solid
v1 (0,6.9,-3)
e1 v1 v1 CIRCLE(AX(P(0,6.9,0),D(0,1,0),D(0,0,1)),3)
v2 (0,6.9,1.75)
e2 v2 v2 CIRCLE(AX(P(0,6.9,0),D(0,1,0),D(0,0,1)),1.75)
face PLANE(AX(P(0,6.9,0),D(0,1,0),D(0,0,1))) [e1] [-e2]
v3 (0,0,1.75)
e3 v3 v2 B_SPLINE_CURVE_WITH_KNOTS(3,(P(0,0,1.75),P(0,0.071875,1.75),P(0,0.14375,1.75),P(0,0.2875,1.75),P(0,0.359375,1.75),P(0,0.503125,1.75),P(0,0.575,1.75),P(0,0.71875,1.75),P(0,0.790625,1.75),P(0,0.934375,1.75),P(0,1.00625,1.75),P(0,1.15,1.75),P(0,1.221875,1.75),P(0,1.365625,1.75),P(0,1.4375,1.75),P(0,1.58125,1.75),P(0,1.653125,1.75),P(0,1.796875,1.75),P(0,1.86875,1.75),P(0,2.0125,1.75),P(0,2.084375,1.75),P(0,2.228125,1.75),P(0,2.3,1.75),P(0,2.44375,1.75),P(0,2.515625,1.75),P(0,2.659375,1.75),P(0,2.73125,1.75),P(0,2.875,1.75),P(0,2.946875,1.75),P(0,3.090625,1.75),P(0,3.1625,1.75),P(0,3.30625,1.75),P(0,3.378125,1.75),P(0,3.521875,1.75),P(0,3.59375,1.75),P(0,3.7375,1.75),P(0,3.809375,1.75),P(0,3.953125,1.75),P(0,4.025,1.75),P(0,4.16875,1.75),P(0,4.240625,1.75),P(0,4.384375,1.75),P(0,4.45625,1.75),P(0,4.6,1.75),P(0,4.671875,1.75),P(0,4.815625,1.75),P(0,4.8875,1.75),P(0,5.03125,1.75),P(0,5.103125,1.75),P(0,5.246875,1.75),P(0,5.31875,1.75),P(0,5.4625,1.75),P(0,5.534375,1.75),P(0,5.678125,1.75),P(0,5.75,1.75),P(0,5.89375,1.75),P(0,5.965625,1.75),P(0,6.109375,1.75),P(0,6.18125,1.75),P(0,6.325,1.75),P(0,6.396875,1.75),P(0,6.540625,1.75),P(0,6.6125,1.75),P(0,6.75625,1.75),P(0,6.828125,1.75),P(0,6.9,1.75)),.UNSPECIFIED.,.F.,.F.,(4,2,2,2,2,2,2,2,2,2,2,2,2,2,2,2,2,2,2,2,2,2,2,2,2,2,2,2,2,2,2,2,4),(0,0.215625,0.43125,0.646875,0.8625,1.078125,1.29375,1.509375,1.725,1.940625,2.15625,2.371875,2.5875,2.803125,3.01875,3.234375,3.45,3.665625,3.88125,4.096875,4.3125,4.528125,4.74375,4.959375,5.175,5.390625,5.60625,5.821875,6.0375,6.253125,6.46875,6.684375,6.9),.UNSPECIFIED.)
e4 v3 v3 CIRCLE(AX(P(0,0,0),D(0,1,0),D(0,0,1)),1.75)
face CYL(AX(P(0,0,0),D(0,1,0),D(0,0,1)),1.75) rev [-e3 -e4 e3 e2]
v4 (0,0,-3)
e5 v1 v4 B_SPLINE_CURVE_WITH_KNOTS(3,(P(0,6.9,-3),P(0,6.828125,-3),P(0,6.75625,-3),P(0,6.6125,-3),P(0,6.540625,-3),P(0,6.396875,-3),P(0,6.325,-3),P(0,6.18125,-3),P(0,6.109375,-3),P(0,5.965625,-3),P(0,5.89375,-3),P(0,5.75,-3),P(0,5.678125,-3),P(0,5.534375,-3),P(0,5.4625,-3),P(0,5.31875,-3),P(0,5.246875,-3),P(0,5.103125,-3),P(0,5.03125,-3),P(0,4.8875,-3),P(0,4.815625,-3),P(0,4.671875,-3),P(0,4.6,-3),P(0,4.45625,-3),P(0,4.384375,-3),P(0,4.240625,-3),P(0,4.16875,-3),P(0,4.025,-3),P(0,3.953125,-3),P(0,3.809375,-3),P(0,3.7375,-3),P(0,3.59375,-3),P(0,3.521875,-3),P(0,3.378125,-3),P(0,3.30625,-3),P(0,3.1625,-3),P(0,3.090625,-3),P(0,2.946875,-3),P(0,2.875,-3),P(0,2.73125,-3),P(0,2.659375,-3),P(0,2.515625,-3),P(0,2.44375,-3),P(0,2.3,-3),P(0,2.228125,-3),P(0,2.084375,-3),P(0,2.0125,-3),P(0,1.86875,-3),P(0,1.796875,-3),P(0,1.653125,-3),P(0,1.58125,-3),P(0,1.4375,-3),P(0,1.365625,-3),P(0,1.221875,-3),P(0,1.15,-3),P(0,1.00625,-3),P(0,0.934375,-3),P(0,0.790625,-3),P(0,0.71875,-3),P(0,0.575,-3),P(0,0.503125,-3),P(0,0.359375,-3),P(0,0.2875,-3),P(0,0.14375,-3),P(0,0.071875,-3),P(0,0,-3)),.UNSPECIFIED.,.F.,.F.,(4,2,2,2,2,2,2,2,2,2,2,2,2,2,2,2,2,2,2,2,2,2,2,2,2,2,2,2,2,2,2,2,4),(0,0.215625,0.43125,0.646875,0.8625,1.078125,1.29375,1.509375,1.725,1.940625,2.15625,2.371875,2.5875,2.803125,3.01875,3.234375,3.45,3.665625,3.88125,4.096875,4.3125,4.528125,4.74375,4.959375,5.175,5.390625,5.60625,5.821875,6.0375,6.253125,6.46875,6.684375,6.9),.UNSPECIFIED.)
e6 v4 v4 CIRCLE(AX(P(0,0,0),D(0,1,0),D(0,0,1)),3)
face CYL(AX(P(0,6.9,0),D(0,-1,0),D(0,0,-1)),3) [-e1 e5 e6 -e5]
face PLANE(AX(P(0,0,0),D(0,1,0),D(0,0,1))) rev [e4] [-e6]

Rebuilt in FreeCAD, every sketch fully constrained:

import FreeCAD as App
import Part
import Sketcher
from FreeCAD import Vector
Q = App.Units.Quantity

doc = App.newDocument("Part")
body = doc.addObject("PartDesign::Body", "Body")

sketch1 = doc.addObject("Sketcher::SketchObject", "Sketch")
body.addObject(sketch1)
sketch1.AttachmentSupport = (doc.XZ_Plane, [""])
sketch1.MapMode = "FlatFace"
sketch1.addGeometry(Part.Circle(Vector(0, 0, 0), Vector(0, 0, 1), 3), False)
sketch1.addConstraint([
    Sketcher.Constraint("Coincident", 0, 3, -1, 1),
    Sketcher.Constraint("Diameter", 0, Q("6 mm")),
])
pad1 = doc.addObject("PartDesign::Pad", "Pad")
body.addObject(pad1)
pad1.Profile = sketch1
pad1.Length = 6.9
pad1.Reversed = True

sketch2 = doc.addObject("Sketcher::SketchObject", "Sketch001")
body.addObject(sketch2)
sketch2.AttachmentSupport = (doc.XZ_Plane, [""])
sketch2.MapMode = "FlatFace"
sketch2.AttachmentOffset = App.Placement(Vector(0, 0, -6.9), App.Rotation())
sketch2.addGeometry(Part.Circle(Vector(0, 0, 0), Vector(0, 0, 1), 1.75), False)
sketch2.addConstraint([
    Sketcher.Constraint("Coincident", 0, 3, -1, 1),
    Sketcher.Constraint("Diameter", 0, Q("3.5 mm")),
])
pocket1 = doc.addObject("PartDesign::Pocket", "Pocket")
body.addObject(pocket1)
pocket1.Profile = sketch2
pocket1.Type = "ThroughAll"
pocket1.Reversed = True

doc.recompute()
